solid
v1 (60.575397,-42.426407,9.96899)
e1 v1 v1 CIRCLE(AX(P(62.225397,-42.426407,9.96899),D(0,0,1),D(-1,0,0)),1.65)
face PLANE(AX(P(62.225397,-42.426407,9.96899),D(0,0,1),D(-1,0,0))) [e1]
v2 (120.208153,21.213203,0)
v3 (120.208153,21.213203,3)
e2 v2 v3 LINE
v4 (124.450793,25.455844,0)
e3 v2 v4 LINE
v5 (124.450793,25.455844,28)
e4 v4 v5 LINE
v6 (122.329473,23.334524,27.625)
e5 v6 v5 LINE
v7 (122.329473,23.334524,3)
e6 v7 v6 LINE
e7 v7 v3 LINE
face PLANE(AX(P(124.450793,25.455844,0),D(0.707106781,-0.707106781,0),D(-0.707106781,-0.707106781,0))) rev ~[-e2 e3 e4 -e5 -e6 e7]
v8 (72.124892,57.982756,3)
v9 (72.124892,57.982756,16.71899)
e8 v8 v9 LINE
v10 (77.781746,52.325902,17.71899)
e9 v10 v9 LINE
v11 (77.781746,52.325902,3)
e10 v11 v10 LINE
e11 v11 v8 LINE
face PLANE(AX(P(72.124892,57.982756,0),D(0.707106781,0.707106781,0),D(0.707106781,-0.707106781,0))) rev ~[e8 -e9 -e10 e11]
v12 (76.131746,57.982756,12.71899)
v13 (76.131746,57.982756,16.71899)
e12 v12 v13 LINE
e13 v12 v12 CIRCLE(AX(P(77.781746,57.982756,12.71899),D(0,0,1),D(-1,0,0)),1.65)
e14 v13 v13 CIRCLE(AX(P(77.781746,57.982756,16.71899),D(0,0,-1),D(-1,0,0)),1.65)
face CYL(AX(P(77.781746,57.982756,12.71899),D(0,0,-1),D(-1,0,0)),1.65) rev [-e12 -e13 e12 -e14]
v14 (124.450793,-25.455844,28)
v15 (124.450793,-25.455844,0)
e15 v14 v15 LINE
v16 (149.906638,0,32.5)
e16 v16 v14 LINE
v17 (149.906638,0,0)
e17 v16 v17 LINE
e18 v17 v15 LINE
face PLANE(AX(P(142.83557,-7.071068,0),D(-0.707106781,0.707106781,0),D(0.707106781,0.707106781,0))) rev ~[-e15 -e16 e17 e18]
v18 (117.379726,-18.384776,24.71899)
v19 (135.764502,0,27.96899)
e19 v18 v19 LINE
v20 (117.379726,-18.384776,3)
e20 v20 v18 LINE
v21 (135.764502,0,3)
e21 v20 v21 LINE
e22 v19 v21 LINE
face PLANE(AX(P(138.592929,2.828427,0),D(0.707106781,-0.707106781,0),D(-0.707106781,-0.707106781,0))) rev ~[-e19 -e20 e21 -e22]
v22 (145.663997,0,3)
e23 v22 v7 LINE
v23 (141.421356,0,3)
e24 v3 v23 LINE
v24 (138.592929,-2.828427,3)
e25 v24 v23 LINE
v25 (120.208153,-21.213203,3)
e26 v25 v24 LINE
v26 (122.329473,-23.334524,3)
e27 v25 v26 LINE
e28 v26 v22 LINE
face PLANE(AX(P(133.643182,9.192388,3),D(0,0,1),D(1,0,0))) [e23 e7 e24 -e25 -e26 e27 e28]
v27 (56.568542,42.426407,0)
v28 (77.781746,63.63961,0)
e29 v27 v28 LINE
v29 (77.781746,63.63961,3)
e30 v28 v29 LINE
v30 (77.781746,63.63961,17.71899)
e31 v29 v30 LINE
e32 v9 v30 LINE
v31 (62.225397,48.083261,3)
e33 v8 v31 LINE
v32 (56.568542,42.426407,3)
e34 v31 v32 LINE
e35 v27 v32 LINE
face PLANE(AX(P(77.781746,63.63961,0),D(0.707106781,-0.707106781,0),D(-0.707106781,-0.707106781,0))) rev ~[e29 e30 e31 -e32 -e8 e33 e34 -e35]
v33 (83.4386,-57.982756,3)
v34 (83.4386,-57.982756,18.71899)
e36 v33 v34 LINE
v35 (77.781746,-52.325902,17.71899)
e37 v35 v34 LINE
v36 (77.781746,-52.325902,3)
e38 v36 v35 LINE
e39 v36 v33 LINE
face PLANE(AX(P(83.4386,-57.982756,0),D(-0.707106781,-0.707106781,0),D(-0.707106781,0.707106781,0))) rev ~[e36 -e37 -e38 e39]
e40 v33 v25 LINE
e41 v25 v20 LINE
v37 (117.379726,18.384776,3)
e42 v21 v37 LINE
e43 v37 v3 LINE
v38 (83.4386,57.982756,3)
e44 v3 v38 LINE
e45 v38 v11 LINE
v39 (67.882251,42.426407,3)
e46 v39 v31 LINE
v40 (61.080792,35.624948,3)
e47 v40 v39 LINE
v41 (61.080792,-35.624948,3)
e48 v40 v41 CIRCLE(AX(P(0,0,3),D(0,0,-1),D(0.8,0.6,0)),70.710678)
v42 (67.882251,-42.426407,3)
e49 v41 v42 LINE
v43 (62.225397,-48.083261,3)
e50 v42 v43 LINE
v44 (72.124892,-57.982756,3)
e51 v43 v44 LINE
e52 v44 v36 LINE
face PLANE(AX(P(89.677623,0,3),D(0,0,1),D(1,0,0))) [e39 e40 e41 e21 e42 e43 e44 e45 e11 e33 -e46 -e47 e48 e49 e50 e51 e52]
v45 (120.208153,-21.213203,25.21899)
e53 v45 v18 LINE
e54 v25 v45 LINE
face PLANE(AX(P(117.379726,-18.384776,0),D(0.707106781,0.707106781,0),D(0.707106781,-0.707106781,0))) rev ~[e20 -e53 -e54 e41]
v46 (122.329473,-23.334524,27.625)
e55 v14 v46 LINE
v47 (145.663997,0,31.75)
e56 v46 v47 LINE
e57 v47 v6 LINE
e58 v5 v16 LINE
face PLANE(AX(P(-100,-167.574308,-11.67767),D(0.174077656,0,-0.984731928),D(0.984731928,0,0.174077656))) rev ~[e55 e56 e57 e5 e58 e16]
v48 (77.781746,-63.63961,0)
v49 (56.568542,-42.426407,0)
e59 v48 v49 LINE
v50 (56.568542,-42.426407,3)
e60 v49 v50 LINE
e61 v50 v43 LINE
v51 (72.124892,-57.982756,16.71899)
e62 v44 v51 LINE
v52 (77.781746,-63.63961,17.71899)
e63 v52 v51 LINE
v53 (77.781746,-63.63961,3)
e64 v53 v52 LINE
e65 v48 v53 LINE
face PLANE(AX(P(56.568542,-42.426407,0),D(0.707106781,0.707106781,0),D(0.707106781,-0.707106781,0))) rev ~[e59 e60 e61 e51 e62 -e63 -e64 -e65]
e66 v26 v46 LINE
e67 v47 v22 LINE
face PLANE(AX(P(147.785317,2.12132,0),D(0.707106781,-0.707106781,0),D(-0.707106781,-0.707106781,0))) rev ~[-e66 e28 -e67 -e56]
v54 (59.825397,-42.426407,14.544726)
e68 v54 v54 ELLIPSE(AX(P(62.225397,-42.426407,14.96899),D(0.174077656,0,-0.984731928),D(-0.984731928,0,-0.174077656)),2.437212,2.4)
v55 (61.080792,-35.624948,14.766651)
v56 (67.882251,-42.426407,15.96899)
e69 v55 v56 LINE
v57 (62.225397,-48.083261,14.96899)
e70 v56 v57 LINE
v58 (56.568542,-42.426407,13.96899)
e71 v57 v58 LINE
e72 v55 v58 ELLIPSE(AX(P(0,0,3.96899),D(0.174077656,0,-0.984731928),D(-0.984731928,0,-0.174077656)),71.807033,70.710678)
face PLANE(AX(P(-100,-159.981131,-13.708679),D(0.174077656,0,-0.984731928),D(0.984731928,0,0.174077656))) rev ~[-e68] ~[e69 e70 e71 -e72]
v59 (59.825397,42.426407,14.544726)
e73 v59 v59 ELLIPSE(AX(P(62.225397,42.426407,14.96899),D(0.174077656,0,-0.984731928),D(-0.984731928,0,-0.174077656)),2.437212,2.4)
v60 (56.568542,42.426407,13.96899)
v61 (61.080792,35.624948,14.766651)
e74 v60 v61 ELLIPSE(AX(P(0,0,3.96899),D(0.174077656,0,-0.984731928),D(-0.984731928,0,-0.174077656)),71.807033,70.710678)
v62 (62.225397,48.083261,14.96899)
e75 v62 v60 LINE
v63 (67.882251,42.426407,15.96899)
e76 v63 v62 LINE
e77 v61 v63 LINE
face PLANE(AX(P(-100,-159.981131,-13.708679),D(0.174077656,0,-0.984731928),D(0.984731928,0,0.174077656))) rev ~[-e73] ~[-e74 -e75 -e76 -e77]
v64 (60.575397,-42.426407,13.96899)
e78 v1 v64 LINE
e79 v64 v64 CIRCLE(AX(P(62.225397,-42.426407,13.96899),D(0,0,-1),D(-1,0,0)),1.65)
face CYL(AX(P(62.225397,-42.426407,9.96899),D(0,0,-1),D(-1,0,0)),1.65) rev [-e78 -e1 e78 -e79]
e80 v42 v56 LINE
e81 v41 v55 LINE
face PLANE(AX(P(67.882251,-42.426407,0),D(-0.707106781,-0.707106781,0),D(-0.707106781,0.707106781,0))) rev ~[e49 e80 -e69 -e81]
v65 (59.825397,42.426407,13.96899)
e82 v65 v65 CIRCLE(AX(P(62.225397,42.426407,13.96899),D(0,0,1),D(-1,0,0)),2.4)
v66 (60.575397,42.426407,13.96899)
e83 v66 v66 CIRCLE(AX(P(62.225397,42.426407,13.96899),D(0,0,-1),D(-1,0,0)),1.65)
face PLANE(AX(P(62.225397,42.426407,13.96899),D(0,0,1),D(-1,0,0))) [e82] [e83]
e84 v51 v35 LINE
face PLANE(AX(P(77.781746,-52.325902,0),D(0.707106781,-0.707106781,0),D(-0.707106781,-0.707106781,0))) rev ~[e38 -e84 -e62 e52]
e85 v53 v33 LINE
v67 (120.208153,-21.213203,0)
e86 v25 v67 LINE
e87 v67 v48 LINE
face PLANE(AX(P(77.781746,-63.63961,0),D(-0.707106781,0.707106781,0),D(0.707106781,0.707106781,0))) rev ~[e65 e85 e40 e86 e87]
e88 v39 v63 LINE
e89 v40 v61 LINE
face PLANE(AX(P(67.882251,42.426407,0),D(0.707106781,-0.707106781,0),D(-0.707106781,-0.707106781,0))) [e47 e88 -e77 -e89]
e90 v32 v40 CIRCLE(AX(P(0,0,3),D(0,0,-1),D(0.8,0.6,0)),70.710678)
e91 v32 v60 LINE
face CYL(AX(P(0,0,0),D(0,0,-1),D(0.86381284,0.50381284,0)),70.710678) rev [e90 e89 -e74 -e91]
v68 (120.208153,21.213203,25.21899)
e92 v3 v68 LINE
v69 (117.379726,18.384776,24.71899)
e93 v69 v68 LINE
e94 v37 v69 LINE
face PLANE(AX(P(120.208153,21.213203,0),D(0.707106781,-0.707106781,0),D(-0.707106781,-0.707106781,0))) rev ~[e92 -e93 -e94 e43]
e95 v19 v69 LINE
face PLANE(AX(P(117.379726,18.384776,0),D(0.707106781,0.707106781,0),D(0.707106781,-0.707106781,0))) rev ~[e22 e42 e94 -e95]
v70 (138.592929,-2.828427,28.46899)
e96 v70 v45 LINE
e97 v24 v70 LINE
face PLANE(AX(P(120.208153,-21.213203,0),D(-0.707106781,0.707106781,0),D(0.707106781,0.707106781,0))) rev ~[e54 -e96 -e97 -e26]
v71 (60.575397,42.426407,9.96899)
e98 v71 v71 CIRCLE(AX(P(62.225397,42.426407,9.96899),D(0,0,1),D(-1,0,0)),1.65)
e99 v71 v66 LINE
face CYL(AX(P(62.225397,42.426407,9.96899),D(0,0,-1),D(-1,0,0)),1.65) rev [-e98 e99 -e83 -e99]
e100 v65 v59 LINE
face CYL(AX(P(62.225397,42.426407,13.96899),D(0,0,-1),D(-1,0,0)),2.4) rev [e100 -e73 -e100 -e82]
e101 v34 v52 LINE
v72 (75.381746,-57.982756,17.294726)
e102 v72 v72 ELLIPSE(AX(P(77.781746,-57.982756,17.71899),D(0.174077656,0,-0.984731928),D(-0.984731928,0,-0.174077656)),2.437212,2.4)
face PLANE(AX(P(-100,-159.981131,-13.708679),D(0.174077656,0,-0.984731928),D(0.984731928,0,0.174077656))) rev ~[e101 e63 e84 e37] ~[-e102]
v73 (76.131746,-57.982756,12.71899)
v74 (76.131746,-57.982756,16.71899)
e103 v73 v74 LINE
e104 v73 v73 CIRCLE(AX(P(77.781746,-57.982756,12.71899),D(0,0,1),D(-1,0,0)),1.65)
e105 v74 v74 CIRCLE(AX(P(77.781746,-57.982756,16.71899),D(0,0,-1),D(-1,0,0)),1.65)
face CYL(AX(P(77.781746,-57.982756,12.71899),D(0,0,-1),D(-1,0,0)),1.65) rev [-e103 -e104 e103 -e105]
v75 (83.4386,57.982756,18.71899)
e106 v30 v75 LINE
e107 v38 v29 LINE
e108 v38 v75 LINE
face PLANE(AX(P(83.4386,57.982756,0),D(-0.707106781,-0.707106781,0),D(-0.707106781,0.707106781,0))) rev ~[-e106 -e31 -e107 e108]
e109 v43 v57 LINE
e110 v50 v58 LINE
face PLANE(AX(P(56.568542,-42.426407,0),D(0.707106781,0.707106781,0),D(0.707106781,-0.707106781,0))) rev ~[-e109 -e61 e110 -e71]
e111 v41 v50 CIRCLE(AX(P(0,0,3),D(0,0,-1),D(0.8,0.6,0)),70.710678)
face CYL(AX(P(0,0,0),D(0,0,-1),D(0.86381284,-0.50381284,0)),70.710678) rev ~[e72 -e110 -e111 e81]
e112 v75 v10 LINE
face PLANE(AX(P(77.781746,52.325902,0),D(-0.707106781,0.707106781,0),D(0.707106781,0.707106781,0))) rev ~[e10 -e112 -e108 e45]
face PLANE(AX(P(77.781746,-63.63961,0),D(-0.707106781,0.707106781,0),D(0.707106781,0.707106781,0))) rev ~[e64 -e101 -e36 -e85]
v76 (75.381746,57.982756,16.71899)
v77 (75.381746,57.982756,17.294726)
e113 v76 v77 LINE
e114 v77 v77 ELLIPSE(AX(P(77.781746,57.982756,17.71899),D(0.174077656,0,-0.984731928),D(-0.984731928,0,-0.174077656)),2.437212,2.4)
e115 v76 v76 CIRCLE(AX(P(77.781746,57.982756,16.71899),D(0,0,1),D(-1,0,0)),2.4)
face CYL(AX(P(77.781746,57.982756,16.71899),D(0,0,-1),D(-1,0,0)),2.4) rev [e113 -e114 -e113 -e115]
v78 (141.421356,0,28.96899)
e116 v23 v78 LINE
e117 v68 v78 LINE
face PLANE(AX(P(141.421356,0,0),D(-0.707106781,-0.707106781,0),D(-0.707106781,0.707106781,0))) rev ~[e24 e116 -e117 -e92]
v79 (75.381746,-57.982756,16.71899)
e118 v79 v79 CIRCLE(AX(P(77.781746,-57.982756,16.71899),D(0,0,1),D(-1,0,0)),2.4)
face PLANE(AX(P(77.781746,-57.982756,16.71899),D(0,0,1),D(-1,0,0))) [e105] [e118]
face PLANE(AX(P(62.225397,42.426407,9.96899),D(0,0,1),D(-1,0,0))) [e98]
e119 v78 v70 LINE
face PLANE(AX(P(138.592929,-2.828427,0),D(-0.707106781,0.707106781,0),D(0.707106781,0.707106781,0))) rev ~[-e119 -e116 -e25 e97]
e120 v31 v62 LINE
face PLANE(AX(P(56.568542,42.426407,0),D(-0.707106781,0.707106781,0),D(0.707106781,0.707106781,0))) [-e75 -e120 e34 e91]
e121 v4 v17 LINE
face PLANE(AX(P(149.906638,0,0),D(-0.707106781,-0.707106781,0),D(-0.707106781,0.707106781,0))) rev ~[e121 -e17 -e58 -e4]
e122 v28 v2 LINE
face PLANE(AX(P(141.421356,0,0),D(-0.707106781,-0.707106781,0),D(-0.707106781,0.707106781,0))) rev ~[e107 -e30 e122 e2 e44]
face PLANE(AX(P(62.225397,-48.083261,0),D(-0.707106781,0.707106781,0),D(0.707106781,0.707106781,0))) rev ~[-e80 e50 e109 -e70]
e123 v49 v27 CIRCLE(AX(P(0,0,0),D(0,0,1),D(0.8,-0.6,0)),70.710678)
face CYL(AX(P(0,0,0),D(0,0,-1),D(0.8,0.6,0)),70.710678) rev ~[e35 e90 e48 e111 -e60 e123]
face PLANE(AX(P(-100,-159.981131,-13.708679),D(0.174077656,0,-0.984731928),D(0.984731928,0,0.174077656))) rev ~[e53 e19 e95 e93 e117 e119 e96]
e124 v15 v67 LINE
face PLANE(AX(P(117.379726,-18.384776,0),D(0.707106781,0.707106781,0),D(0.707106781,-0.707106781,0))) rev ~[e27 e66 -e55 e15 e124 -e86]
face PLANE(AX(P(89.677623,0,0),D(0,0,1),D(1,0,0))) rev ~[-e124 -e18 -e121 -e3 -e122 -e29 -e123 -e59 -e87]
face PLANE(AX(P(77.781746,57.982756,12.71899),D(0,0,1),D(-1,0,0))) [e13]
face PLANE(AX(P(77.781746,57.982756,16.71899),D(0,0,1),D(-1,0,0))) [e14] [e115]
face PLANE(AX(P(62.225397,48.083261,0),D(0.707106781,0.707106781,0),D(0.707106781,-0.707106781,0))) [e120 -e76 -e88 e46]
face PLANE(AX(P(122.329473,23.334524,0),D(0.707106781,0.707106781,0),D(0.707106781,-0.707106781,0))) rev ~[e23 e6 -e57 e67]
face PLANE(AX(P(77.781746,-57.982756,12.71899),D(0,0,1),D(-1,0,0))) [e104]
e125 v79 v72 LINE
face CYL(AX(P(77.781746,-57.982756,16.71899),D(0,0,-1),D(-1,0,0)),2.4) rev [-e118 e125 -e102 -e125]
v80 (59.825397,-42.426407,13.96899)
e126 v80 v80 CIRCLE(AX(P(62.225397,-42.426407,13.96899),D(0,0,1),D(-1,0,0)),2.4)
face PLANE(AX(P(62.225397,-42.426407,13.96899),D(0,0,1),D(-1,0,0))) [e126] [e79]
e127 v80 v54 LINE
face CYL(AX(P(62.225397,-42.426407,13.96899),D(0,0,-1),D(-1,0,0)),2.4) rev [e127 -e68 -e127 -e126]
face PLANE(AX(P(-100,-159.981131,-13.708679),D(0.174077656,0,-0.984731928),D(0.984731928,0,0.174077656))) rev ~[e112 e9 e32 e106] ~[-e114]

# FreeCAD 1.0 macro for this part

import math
import FreeCAD as App
import Part
import Sketcher
Q = App.Units.Quantity

doc = App.newDocument("Part")
body = doc.addObject("PartDesign::Body", "Body")

# Sketch on XY plane
sketch1 = body.newObject("Sketcher::SketchObject", "Sketch")
sketch1.AttachmentSupport = (doc.getObject("XY_Plane"), [""])
sketch1.MapMode = "FlatFace"
sketch1.addGeometry([
    Part.LineSegment(App.Vector(78, -64, 0), App.Vector(141, 0, 0)),  # 0
    Part.LineSegment(App.Vector(141, 0, 0), App.Vector(78, 64, 0)),  # 1
    Part.LineSegment(App.Vector(78, 64, 0), App.Vector(57, 42, 0)),  # 2
    Part.ArcOfCircle(Part.Circle(App.Vector(0, 0, 0), App.Vector(0, 0, 1), 71), math.radians(-37), math.radians(37)),  # 3
    Part.LineSegment(App.Vector(57, -42, 0), App.Vector(78, -64, 0)),  # 4
], False)
sketch1.addConstraint([
    Sketcher.Constraint("Coincident", 0, 2, 1, 1),
    Sketcher.Constraint("Coincident", 1, 2, 2, 1),
    Sketcher.Constraint("Coincident", 2, 2, 3, 2),
    Sketcher.Constraint("Coincident", 3, 1, 4, 1),
    Sketcher.Constraint("Coincident", 4, 2, 0, 1),
    Sketcher.Constraint("Coincident", 3, 3, -1, 1),
    Sketcher.Constraint("Symmetric", 1, 2, 4, 2, -1),
    Sketcher.Constraint("PointOnObject", 0, 2, -1),
    Sketcher.Constraint("Perpendicular", 0, 1),
    Sketcher.Constraint("Perpendicular", 1, 2),
    Sketcher.Constraint("Perpendicular", 2, 4),
    Sketcher.Constraint("Distance", 0, Q("90 mm")),
    Sketcher.Constraint("Distance", 2, Q("30 mm")),
    Sketcher.Constraint("Radius", 3, Q("70.710678 mm")),
])
pad1 = body.newObject("PartDesign::Pad", "Pad")
pad1.Profile = sketch1
pad1.Length = 3

# Sketch on XY plane
sketch2 = body.newObject("Sketcher::SketchObject", "Sketch001")
sketch2.AttachmentSupport = (doc.getObject("XY_Plane"), [""])
sketch2.MapMode = "FlatFace"
sketch2.addGeometry([
    Part.LineSegment(App.Vector(68, 42, 0), App.Vector(62, 48, 0)),
    Part.LineSegment(App.Vector(62, 48, 0), App.Vector(57, 42, 0)),
    Part.ArcOfCircle(Part.Circle(App.Vector(0, 0, 0), App.Vector(0, 0, 1), 71), math.radians(30.25), math.radians(36.87)),
    Part.LineSegment(App.Vector(61, 36, 0), App.Vector(68, 42, 0)),
], False)
sketch2.addConstraint([
    Sketcher.Constraint("Coincident", 0, 2, 1, 1),
    Sketcher.Constraint("Coincident", 1, 2, 2, 2),
    Sketcher.Constraint("Coincident", 2, 1, 3, 1),
    Sketcher.Constraint("Coincident", 3, 2, 0, 1),
    Sketcher.Constraint("Coincident", 2, 3, -1, 1),
    Sketcher.Constraint("Perpendicular", 0, 1),
    Sketcher.Constraint("Parallel", 1, 3),
    Sketcher.Constraint("Horizontal", 1, 2, 3, 2),
    Sketcher.Constraint("Equal", 0, 1),
    Sketcher.Constraint("Distance", 0, Q("8 mm")),
    Sketcher.Constraint("Radius", 2, Q("70.710678 mm")),
    Sketcher.Constraint("DistanceY", -1, 1, 0, 2, Q("48.083261 mm")),
])
pad2 = body.newObject("PartDesign::Pad", "Pad001")
pad2.Profile = sketch2
pad2.Length = 33

# Sketch on XY plane
sketch3 = body.newObject("Sketcher::SketchObject", "Sketch002")
sketch3.AttachmentSupport = (doc.getObject("XY_Plane"), [""])
sketch3.MapMode = "FlatFace"
sketch3.addGeometry([
    Part.LineSegment(App.Vector(62, -48, 0), App.Vector(68, -42, 0)),
    Part.LineSegment(App.Vector(68, -42, 0), App.Vector(61, -36, 0)),
    Part.ArcOfCircle(Part.Circle(App.Vector(0, 0, 0), App.Vector(0, 0, 1), 71), math.radians(-36.87), math.radians(-30.25)),
    Part.LineSegment(App.Vector(57, -42, 0), App.Vector(62, -48, 0)),
], False)
sketch3.addConstraint([
    Sketcher.Constraint("Coincident", 0, 2, 1, 1),
    Sketcher.Constraint("Coincident", 1, 2, 2, 2),
    Sketcher.Constraint("Coincident", 2, 1, 3, 1),
    Sketcher.Constraint("Coincident", 3, 2, 0, 1),
    Sketcher.Constraint("Coincident", 2, 3, -1, 1),
    Sketcher.Constraint("Perpendicular", 0, 1),
    Sketcher.Constraint("Parallel", 1, 3),
    Sketcher.Constraint("Horizontal", 0, 2, 2, 1),
    Sketcher.Constraint("Equal", 0, 3),
    Sketcher.Constraint("Distance", 0, Q("8 mm")),
    Sketcher.Constraint("Radius", 2, Q("70.710678 mm")),
    Sketcher.Constraint("DistanceX", -1, 1, 0, 2, Q("67.882251 mm")),
])
pad3 = body.newObject("PartDesign::Pad", "Pad002")
pad3.Profile = sketch3
pad3.Length = 33

# Sketch on XY plane
sketch4 = body.newObject("Sketcher::SketchObject", "Sketch003")
sketch4.AttachmentSupport = (doc.getObject("XY_Plane"), [""])
sketch4.MapMode = "FlatFace"
sketch4.addGeometry([
    Part.LineSegment(App.Vector(72, 58, 0), App.Vector(78, 52, 0)),
    Part.LineSegment(App.Vector(78, 52, 0), App.Vector(83, 58, 0)),
    Part.LineSegment(App.Vector(83, 58, 0), App.Vector(78, 64, 0)),
    Part.LineSegment(App.Vector(78, 64, 0), App.Vector(72, 58, 0)),
], False)
sketch4.addConstraint([
    Sketcher.Constraint("Coincident", 0, 2, 1, 1),
    Sketcher.Constraint("Coincident", 1, 2, 2, 1),
    Sketcher.Constraint("Coincident", 2, 2, 3, 1),
    Sketcher.Constraint("Coincident", 3, 2, 0, 1),
    Sketcher.Constraint("Perpendicular", 0, 1),
    Sketcher.Constraint("Perpendicular", 1, 2),
    Sketcher.Constraint("Perpendicular", 2, 3),
    Sketcher.Constraint("Horizontal", 1, 2, 3, 2),
    Sketcher.Constraint("Vertical", 0, 2, 2, 2),
    Sketcher.Constraint("Distance", 0, Q("8 mm")),
    Sketcher.Constraint("DistanceY", -1, 1, 0, 2, Q("52.325902 mm")),
    Sketcher.Constraint("DistanceX", -1, 1, 1, 2, Q("83.4386 mm")),
])
pad4 = body.newObject("PartDesign::Pad", "Pad003")
pad4.Profile = sketch4
pad4.Length = 33

# Sketch on XY plane
sketch5 = body.newObject("Sketcher::SketchObject", "Sketch004")
sketch5.AttachmentSupport = (doc.getObject("XY_Plane"), [""])
sketch5.MapMode = "FlatFace"
sketch5.addGeometry([
    Part.LineSegment(App.Vector(72, -58, 0), App.Vector(78, -64, 0)),
    Part.LineSegment(App.Vector(78, -64, 0), App.Vector(83, -58, 0)),
    Part.LineSegment(App.Vector(83, -58, 0), App.Vector(78, -52, 0)),
    Part.LineSegment(App.Vector(78, -52, 0), App.Vector(72, -58, 0)),
], False)
sketch5.addConstraint([
    Sketcher.Constraint("Coincident", 0, 2, 1, 1),
    Sketcher.Constraint("Coincident", 1, 2, 2, 1),
    Sketcher.Constraint("Coincident", 2, 2, 3, 1),
    Sketcher.Constraint("Coincident", 3, 2, 0, 1),
    Sketcher.Constraint("Perpendicular", 0, 1),
    Sketcher.Constraint("Perpendicular", 1, 2),
    Sketcher.Constraint("Perpendicular", 2, 3),
    Sketcher.Constraint("Horizontal", 1, 2, 3, 2),
    Sketcher.Constraint("Vertical", 0, 2, 2, 2),
    Sketcher.Constraint("Distance", 0, Q("8 mm")),
    Sketcher.Constraint("DistanceX", -1, 1, 1, 2, Q("83.4386 mm")),
    Sketcher.Constraint("DistanceY", 2, 2, -1, 1, Q("52.325902 mm")),
])
pad5 = body.newObject("PartDesign::Pad", "Pad004")
pad5.Profile = sketch5
pad5.Length = 33

# Sketch on XY plane
sketch6 = body.newObject("Sketcher::SketchObject", "Sketch005")
sketch6.AttachmentSupport = (doc.getObject("XY_Plane"), [""])
sketch6.MapMode = "FlatFace"
sketch6.addGeometry([
    Part.LineSegment(App.Vector(117.4, 18.4, 0), App.Vector(138.6, -2.8, 0)),
    Part.LineSegment(App.Vector(138.6, -2.8, 0), App.Vector(141.4, 0, 0)),
    Part.LineSegment(App.Vector(141.4, 0, 0), App.Vector(120.2, 21.2, 0)),
    Part.LineSegment(App.Vector(120.2, 21.2, 0), App.Vector(117.4, 18.4, 0)),
], False)
sketch6.addConstraint([
    Sketcher.Constraint("Coincident", 0, 2, 1, 1),
    Sketcher.Constraint("Coincident", 1, 2, 2, 1),
    Sketcher.Constraint("Coincident", 2, 2, 3, 1),
    Sketcher.Constraint("Coincident", 3, 2, 0, 1),
    Sketcher.Constraint("PointOnObject", 1, 2, -1),
    Sketcher.Constraint("Perpendicular", 0, 1),
    Sketcher.Constraint("Perpendicular", 1, 2),
    Sketcher.Constraint("Perpendicular", 2, 3),
    Sketcher.Constraint("Angle", 0, Q("-45 deg")),
    Sketcher.Constraint("Distance", 0, Q("30 mm")),
    Sketcher.Constraint("Distance", 1, Q("4 mm")),
    Sketcher.Constraint("DistanceX", -1, 1, 0, 2, Q("138.592929 mm")),
])
pad6 = body.newObject("PartDesign::Pad", "Pad005")
pad6.Profile = sketch6
pad6.Length = 35

# Sketch on XY plane
sketch7 = body.newObject("Sketcher::SketchObject", "Sketch006")
sketch7.AttachmentSupport = (doc.getObject("XY_Plane"), [""])
sketch7.MapMode = "FlatFace"
sketch7.addGeometry([
    Part.LineSegment(App.Vector(117.4, -18.4, 0), App.Vector(120.2, -21.2, 0)),
    Part.LineSegment(App.Vector(120.2, -21.2, 0), App.Vector(141.4, 0, 0)),
    Part.LineSegment(App.Vector(141.4, 0, 0), App.Vector(138.6, 2.8, 0)),
    Part.LineSegment(App.Vector(138.6, 2.8, 0), App.Vector(117.4, -18.4, 0)),
], False)
sketch7.addConstraint([
    Sketcher.Constraint("Coincident", 0, 2, 1, 1),
    Sketcher.Constraint("Coincident", 1, 2, 2, 1),
    Sketcher.Constraint("Coincident", 2, 2, 3, 1),
    Sketcher.Constraint("Coincident", 3, 2, 0, 1),
    Sketcher.Constraint("PointOnObject", 1, 2, -1),
    Sketcher.Constraint("Perpendicular", 0, 1),
    Sketcher.Constraint("Perpendicular", 1, 2),
    Sketcher.Constraint("Perpendicular", 2, 3),
    Sketcher.Constraint("Angle", 0, Q("-45 deg")),
    Sketcher.Constraint("Distance", 0, Q("4 mm")),
    Sketcher.Constraint("Distance", 1, Q("30 mm")),
    Sketcher.Constraint("DistanceX", -1, 1, 2, 2, Q("138.592929 mm")),
])
pad7 = body.newObject("PartDesign::Pad", "Pad006")
pad7.Profile = sketch7
pad7.Length = 35

# Sketch on XZ plane
sketch8 = body.newObject("Sketcher::SketchObject", "Sketch007")
sketch8.AttachmentSupport = (doc.getObject("XZ_Plane"), [""])
sketch8.MapMode = "FlatFace"
sketch8.addGeometry([
    Part.LineSegment(App.Vector(250, 48, 0), App.Vector(-100, -14, 0)),
    Part.LineSegment(App.Vector(-100, -14, 0), App.Vector(-100, 100, 0)),
    Part.LineSegment(App.Vector(-100, 100, 0), App.Vector(250, 100, 0)),
    Part.LineSegment(App.Vector(250, 100, 0), App.Vector(250, 48, 0)),
], False)
sketch8.addConstraint([
    Sketcher.Constraint("Coincident", 0, 2, 1, 1),
    Sketcher.Constraint("Coincident", 1, 2, 2, 1),
    Sketcher.Constraint("Coincident", 2, 2, 3, 1),
    Sketcher.Constraint("Coincident", 3, 2, 0, 1),
    Sketcher.Constraint("Vertical", 1),
    Sketcher.Constraint("Horizontal", 2),
    Sketcher.Constraint("Vertical", 3),
    Sketcher.Constraint("DistanceX", 2, 1, 2, 2, Q("350 mm")),
    Sketcher.Constraint("DistanceX", 0, 2, -1, 1, Q("100 mm")),
    Sketcher.Constraint("DistanceY", -1, 1, 1, 2, Q("100 mm")),
    Sketcher.Constraint("DistanceY", 1, 1, 1, 2, Q("113.708679 mm")),
    Sketcher.Constraint("Distance", 0, Q("355.42668 mm")),
])
pocket1 = body.newObject("PartDesign::Pocket", "Pocket")
pocket1.Profile = sketch8
pocket1.Type = "ThroughAll"
pocket1.Midplane = True

# Sketch on XY plane
sketch9 = body.newObject("Sketcher::SketchObject", "Sketch008")
sketch9.AttachmentSupport = (doc.getObject("XY_Plane"), [""])
sketch9.MapMode = "FlatFace"
sketch9.addGeometry([
    Part.LineSegment(App.Vector(117, 18, 0), App.Vector(143, -7, 0)),
    Part.LineSegment(App.Vector(143, -7, 0), App.Vector(150, 0, 0)),
    Part.LineSegment(App.Vector(150, 0, 0), App.Vector(124, 25, 0)),
    Part.LineSegment(App.Vector(124, 25, 0), App.Vector(117, 18, 0)),
], False)
sketch9.addConstraint([
    Sketcher.Constraint("Coincident", 0, 2, 1, 1),
    Sketcher.Constraint("Coincident", 1, 2, 2, 1),
    Sketcher.Constraint("Coincident", 2, 2, 3, 1),
    Sketcher.Constraint("Coincident", 3, 2, 0, 1),
    Sketcher.Constraint("PointOnObject", 1, 2, -1),
    Sketcher.Constraint("Perpendicular", 0, 1),
    Sketcher.Constraint("Perpendicular", 1, 2),
    Sketcher.Constraint("Perpendicular", 2, 3),
    Sketcher.Constraint("Angle", 0, Q("-45 deg")),
    Sketcher.Constraint("Distance", 0, Q("36 mm")),
    Sketcher.Constraint("Distance", 1, Q("10 mm")),
    Sketcher.Constraint("DistanceX", -1, 1, 0, 2, Q("142.83557 mm")),
])
pad8 = body.newObject("PartDesign::Pad", "Pad007")
pad8.Profile = sketch9
pad8.Length = 3

# Sketch on XY plane
sketch10 = body.newObject("Sketcher::SketchObject", "Sketch009")
sketch10.AttachmentSupport = (doc.getObject("XY_Plane"), [""])
sketch10.MapMode = "FlatFace"
sketch10.addGeometry([
    Part.LineSegment(App.Vector(117, -18, 0), App.Vector(124, -25, 0)),
    Part.LineSegment(App.Vector(124, -25, 0), App.Vector(150, 0, 0)),
    Part.LineSegment(App.Vector(150, 0, 0), App.Vector(143, 7, 0)),
    Part.LineSegment(App.Vector(143, 7, 0), App.Vector(117, -18, 0)),
], False)
sketch10.addConstraint([
    Sketcher.Constraint("Coincident", 0, 2, 1, 1),
    Sketcher.Constraint("Coincident", 1, 2, 2, 1),
    Sketcher.Constraint("Coincident", 2, 2, 3, 1),
    Sketcher.Constraint("Coincident", 3, 2, 0, 1),
    Sketcher.Constraint("PointOnObject", 1, 2, -1),
    Sketcher.Constraint("Perpendicular", 0, 1),
    Sketcher.Constraint("Perpendicular", 1, 2),
    Sketcher.Constraint("Perpendicular", 2, 3),
    Sketcher.Constraint("Angle", 0, Q("-45 deg")),
    Sketcher.Constraint("Distance", 0, Q("10 mm")),
    Sketcher.Constraint("Distance", 1, Q("36 mm")),
    Sketcher.Constraint("DistanceX", -1, 1, 2, 2, Q("142.83557 mm")),
])
pad9 = body.newObject("PartDesign::Pad", "Pad008")
pad9.Profile = sketch10
pad9.Length = 3

# Sketch on XY plane
sketch11 = body.newObject("Sketcher::SketchObject", "Sketch010")
sketch11.AttachmentSupport = (doc.getObject("XY_Plane"), [""])
sketch11.MapMode = "FlatFace"
sketch11.addGeometry([
    Part.LineSegment(App.Vector(122.3, 23.3, 0), App.Vector(147.8, -2.1, 0)),
    Part.LineSegment(App.Vector(147.8, -2.1, 0), App.Vector(149.9, 0, 0)),
    Part.LineSegment(App.Vector(149.9, 0, 0), App.Vector(124.5, 25.5, 0)),
    Part.LineSegment(App.Vector(124.5, 25.5, 0), App.Vector(122.3, 23.3, 0)),
], False)
sketch11.addConstraint([
    Sketcher.Constraint("Coincident", 0, 2, 1, 1),
    Sketcher.Constraint("Coincident", 1, 2, 2, 1),
    Sketcher.Constraint("Coincident", 2, 2, 3, 1),
    Sketcher.Constraint("Coincident", 3, 2, 0, 1),
    Sketcher.Constraint("PointOnObject", 1, 2, -1),
    Sketcher.Constraint("Perpendicular", 0, 1),
    Sketcher.Constraint("Perpendicular", 1, 2),
    Sketcher.Constraint("Perpendicular", 2, 3),
    Sketcher.Constraint("Angle", 0, Q("-45 deg")),
    Sketcher.Constraint("Distance", 0, Q("36 mm")),
    Sketcher.Constraint("Distance", 1, Q("3 mm")),
    Sketcher.Constraint("DistanceX", -1, 1, 0, 2, Q("147.785317 mm")),
])
pad10 = body.newObject("PartDesign::Pad", "Pad009")
pad10.Profile = sketch11
pad10.Length = 35

# Sketch on XY plane
sketch12 = body.newObject("Sketcher::SketchObject", "Sketch011")
sketch12.AttachmentSupport = (doc.getObject("XY_Plane"), [""])
sketch12.MapMode = "FlatFace"
sketch12.addGeometry([
    Part.LineSegment(App.Vector(122.3, -23.3, 0), App.Vector(124.5, -25.5, 0)),
    Part.LineSegment(App.Vector(124.5, -25.5, 0), App.Vector(149.9, 0, 0)),
    Part.LineSegment(App.Vector(149.9, 0, 0), App.Vector(147.8, 2.1, 0)),
    Part.LineSegment(App.Vector(147.8, 2.1, 0), App.Vector(122.3, -23.3, 0)),
], False)
sketch12.addConstraint([
    Sketcher.Constraint("Coincident", 0, 2, 1, 1),
    Sketcher.Constraint("Coincident", 1, 2, 2, 1),
    Sketcher.Constraint("Coincident", 2, 2, 3, 1),
    Sketcher.Constraint("Coincident", 3, 2, 0, 1),
    Sketcher.Constraint("PointOnObject", 1, 2, -1),
    Sketcher.Constraint("Perpendicular", 0, 1),
    Sketcher.Constraint("Perpendicular", 1, 2),
    Sketcher.Constraint("Perpendicular", 2, 3),
    Sketcher.Constraint("Angle", 0, Q("-45 deg")),
    Sketcher.Constraint("Distance", 0, Q("3 mm")),
    Sketcher.Constraint("Distance", 1, Q("36 mm")),
    Sketcher.Constraint("DistanceX", -1, 1, 0, 2, Q("124.450793 mm")),
])
pad11 = body.newObject("PartDesign::Pad", "Pad010")
pad11.Profile = sketch12
pad11.Length = 35

# Sketch on XZ plane
sketch13 = body.newObject("Sketcher::SketchObject", "Sketch012")
sketch13.AttachmentSupport = (doc.getObject("XZ_Plane"), [""])
sketch13.MapMode = "FlatFace"
sketch13.addGeometry([
    Part.LineSegment(App.Vector(250, 50, 0), App.Vector(-100, -12, 0)),
    Part.LineSegment(App.Vector(-100, -12, 0), App.Vector(-100, 100, 0)),
    Part.LineSegment(App.Vector(-100, 100, 0), App.Vector(250, 100, 0)),
    Part.LineSegment(App.Vector(250, 100, 0), App.Vector(250, 50, 0)),
], False)
sketch13.addConstraint([
    Sketcher.Constraint("Coincident", 0, 2, 1, 1),
    Sketcher.Constraint("Coincident", 1, 2, 2, 1),
    Sketcher.Constraint("Coincident", 2, 2, 3, 1),
    Sketcher.Constraint("Coincident", 3, 2, 0, 1),
    Sketcher.Constraint("Vertical", 1),
    Sketcher.Constraint("Horizontal", 2),
    Sketcher.Constraint("Vertical", 3),
    Sketcher.Constraint("DistanceX", 2, 1, 2, 2, Q("350 mm")),
    Sketcher.Constraint("DistanceX", 0, 2, -1, 1, Q("100 mm")),
    Sketcher.Constraint("DistanceY", -1, 1, 1, 2, Q("100 mm")),
    Sketcher.Constraint("DistanceY", 1, 1, 1, 2, Q("111.67767 mm")),
    Sketcher.Constraint("Distance", 0, Q("355.42668 mm")),
])
pocket2 = body.newObject("PartDesign::Pocket", "Pocket001")
pocket2.Profile = sketch13
pocket2.Type = "ThroughAll"
pocket2.Midplane = True

# Sketch on XY plane
sketch14 = body.newObject("Sketcher::SketchObject", "Sketch013")
sketch14.AttachmentSupport = (doc.getObject("XY_Plane"), [""])
sketch14.MapMode = "FlatFace"
sketch14.AttachmentOffset = App.Placement(App.Vector(0, 0, 9.96899), App.Rotation())
sketch14.addGeometry(Part.Circle(App.Vector(62.2, 42.4, 0), App.Vector(0, 0, 1), 1.6), False)
sketch14.addConstraint([
    Sketcher.Constraint("Diameter", 0, Q("3.3 mm")),
    Sketcher.Constraint("DistanceX", -1, 1, 0, 3, Q("62.225397 mm")),
    Sketcher.Constraint("DistanceY", -1, 1, 0, 3, Q("42.426407 mm")),
])
pocket3 = body.newObject("PartDesign::Pocket", "Pocket002")
pocket3.Profile = sketch14
pocket3.Length = 7
pocket3.Reversed = True

# Sketch on XY plane
sketch15 = body.newObject("Sketcher::SketchObject", "Sketch014")
sketch15.AttachmentSupport = (doc.getObject("XY_Plane"), [""])
sketch15.MapMode = "FlatFace"
sketch15.AttachmentOffset = App.Placement(App.Vector(0, 0, 13.96899), App.Rotation())
sketch15.addGeometry(Part.Circle(App.Vector(62.2, 42.4, 0), App.Vector(0, 0, 1), 2.4), False)
sketch15.addConstraint([
    Sketcher.Constraint("Diameter", 0, Q("4.8 mm")),
    Sketcher.Constraint("DistanceX", -1, 1, 0, 3, Q("62.225397 mm")),
    Sketcher.Constraint("DistanceY", -1, 1, 0, 3, Q("42.426407 mm")),
])
pocket4 = body.newObject("PartDesign::Pocket", "Pocket003")
pocket4.Profile = sketch15
pocket4.Length = 3
pocket4.Reversed = True

# Sketch on XY plane
sketch16 = body.newObject("Sketcher::SketchObject", "Sketch015")
sketch16.AttachmentSupport = (doc.getObject("XY_Plane"), [""])
sketch16.MapMode = "FlatFace"
sketch16.AttachmentOffset = App.Placement(App.Vector(0, 0, 9.96899), App.Rotation())
sketch16.addGeometry(Part.Circle(App.Vector(62.2, -42.4, 0), App.Vector(0, 0, 1), 1.6), False)
sketch16.addConstraint([
    Sketcher.Constraint("Diameter", 0, Q("3.3 mm")),
    Sketcher.Constraint("DistanceX", -1, 1, 0, 3, Q("62.225397 mm")),
    Sketcher.Constraint("DistanceY", 0, 3, -1, 1, Q("42.426407 mm")),
])
pocket5 = body.newObject("PartDesign::Pocket", "Pocket004")
pocket5.Profile = sketch16
pocket5.Length = 7
pocket5.Reversed = True

# Sketch on XY plane
sketch17 = body.newObject("Sketcher::SketchObject", "Sketch016")
sketch17.AttachmentSupport = (doc.getObject("XY_Plane"), [""])
sketch17.MapMode = "FlatFace"
sketch17.AttachmentOffset = App.Placement(App.Vector(0, 0, 13.96899), App.Rotation())
sketch17.addGeometry(Part.Circle(App.Vector(62.2, -42.4, 0), App.Vector(0, 0, 1), 2.4), False)
sketch17.addConstraint([
    Sketcher.Constraint("Diameter", 0, Q("4.8 mm")),
    Sketcher.Constraint("DistanceX", -1, 1, 0, 3, Q("62.225397 mm")),
    Sketcher.Constraint("DistanceY", 0, 3, -1, 1, Q("42.426407 mm")),
])
pocket6 = body.newObject("PartDesign::Pocket", "Pocket005")
pocket6.Profile = sketch17
pocket6.Length = 3
pocket6.Reversed = True

# Sketch on XY plane
sketch18 = body.newObject("Sketcher::SketchObject", "Sketch017")
sketch18.AttachmentSupport = (doc.getObject("XY_Plane"), [""])
sketch18.MapMode = "FlatFace"
sketch18.AttachmentOffset = App.Placement(App.Vector(0, 0, 12.71899), App.Rotation())
sketch18.addGeometry(Part.Circle(App.Vector(77.8, 58, 0), App.Vector(0, 0, 1), 1.6), False)
sketch18.addConstraint([
    Sketcher.Constraint("Diameter", 0, Q("3.3 mm")),
    Sketcher.Constraint("DistanceX", -1, 1, 0, 3, Q("77.781746 mm")),
    Sketcher.Constraint("DistanceY", -1, 1, 0, 3, Q("57.982756 mm")),
])
pocket7 = body.newObject("PartDesign::Pocket", "Pocket006")
pocket7.Profile = sketch18
pocket7.Length = 7
pocket7.Reversed = True

# Sketch on XY plane
sketch19 = body.newObject("Sketcher::SketchObject", "Sketch018")
sketch19.AttachmentSupport = (doc.getObject("XY_Plane"), [""])
sketch19.MapMode = "FlatFace"
sketch19.AttachmentOffset = App.Placement(App.Vector(0, 0, 16.71899), App.Rotation())
sketch19.addGeometry(Part.Circle(App.Vector(77.8, 58, 0), App.Vector(0, 0, 1), 2.4), False)
sketch19.addConstraint([
    Sketcher.Constraint("Diameter", 0, Q("4.8 mm")),
    Sketcher.Constraint("DistanceX", -1, 1, 0, 3, Q("77.781746 mm")),
    Sketcher.Constraint("DistanceY", -1, 1, 0, 3, Q("57.982756 mm")),
])
pocket8 = body.newObject("PartDesign::Pocket", "Pocket007")
pocket8.Profile = sketch19
pocket8.Length = 3
pocket8.Reversed = True

# Sketch on XY plane
sketch20 = body.newObject("Sketcher::SketchObject", "Sketch019")
sketch20.AttachmentSupport = (doc.getObject("XY_Plane"), [""])
sketch20.MapMode = "FlatFace"
sketch20.AttachmentOffset = App.Placement(App.Vector(0, 0, 12.71899), App.Rotation())
sketch20.addGeometry(Part.Circle(App.Vector(77.8, -58, 0), App.Vector(0, 0, 1), 1.6), False)
sketch20.addConstraint([
    Sketcher.Constraint("Diameter", 0, Q("3.3 mm")),
    Sketcher.Constraint("DistanceX", -1, 1, 0, 3, Q("77.781746 mm")),
    Sketcher.Constraint("DistanceY", 0, 3, -1, 1, Q("57.982756 mm")),
])
pocket9 = body.newObject("PartDesign::Pocket", "Pocket008")
pocket9.Profile = sketch20
pocket9.Length = 7
pocket9.Reversed = True

# Sketch on XY plane
sketch21 = body.newObject("Sketcher::SketchObject", "Sketch020")
sketch21.AttachmentSupport = (doc.getObject("XY_Plane"), [""])
sketch21.MapMode = "FlatFace"
sketch21.AttachmentOffset = App.Placement(App.Vector(0, 0, 16.71899), App.Rotation())
sketch21.addGeometry(Part.Circle(App.Vector(77.8, -58, 0), App.Vector(0, 0, 1), 2.4), False)
sketch21.addConstraint([
    Sketcher.Constraint("Diameter", 0, Q("4.8 mm")),
    Sketcher.Constraint("DistanceX", -1, 1, 0, 3, Q("77.781746 mm")),
    Sketcher.Constraint("DistanceY", 0, 3, -1, 1, Q("57.982756 mm")),
])
pocket10 = body.newObject("PartDesign::Pocket", "Pocket009")
pocket10.Profile = sketch21
pocket10.Length = 3
pocket10.Reversed = True

doc.recompute()
